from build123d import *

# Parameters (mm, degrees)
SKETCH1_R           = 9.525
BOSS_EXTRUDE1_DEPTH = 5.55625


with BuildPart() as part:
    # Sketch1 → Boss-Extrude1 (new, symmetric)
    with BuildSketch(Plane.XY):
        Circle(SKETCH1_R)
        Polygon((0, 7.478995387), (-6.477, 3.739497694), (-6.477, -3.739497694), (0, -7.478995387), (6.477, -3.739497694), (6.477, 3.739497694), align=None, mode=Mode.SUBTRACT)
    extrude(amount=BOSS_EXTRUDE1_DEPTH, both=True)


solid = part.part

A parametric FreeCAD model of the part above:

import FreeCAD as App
import Part
import Sketcher
Q = App.Units.Quantity


def add_polygon(sketch, points):
    """Adds a closed chain of lines whose ends are joined by coincident constraints."""
    first, n = sketch.GeometryCount, len(points)
    for a, b in zip(points, points[1:] + points[:1]):
        sketch.addGeometry(Part.LineSegment(App.Vector(*a, 0), App.Vector(*b, 0)), False)
    for i in range(n):
        sketch.addConstraint(Sketcher.Constraint("Coincident", first + i, 2, first + (i + 1) % n, 1))

doc = App.newDocument("Part")
params = doc.addObject("Spreadsheet::Sheet", "Params")
for row, (alias, value) in enumerate([
    ("sketch1_diameter", "0.75 in"),
    ("pad1_length", "0.4375 in"),
], start=1):
    params.set(f"A{row}", alias)
    params.set(f"B{row}", "=" + value)
    params.setAlias(f"B{row}", alias)

body = doc.addObject("PartDesign::Body", "Body")

sketch1 = body.newObject("Sketcher::SketchObject", "Sketch")
sketch1.AttachmentSupport = (doc.getObject("XY_Plane"), [""])
sketch1.MapMode = "FlatFace"
sketch1.addGeometry(Part.Circle(App.Vector(0, 0, 0), App.Vector(0, 0, 1), 10), False)
add_polygon(sketch1, [(-6, 4), (0, 7), (6, 4), (6, -4), (0, -7), (-6, -4)])
sketch1.addConstraint([
    Sketcher.Constraint("Vertical", 3),
    Sketcher.Constraint("Vertical", 6),
    Sketcher.Constraint("Coincident", 0, 3, -1, 1),
    Sketcher.Constraint("Symmetric", 1, 2, 4, 2, -1, 1),
    Sketcher.Constraint("Symmetric", 2, 2, 5, 2, -1, 1),
    Sketcher.Constraint("PointOnObject", 1, 2, -2),
    Sketcher.Constraint("Parallel", 1, 4),
    Sketcher.Constraint("Horizontal", 3, 2, 5, 2),
    Sketcher.Constraint("Diameter", 0, Q("0.75 in")),
    Sketcher.Constraint("Angle", 1, Q("30 deg")),
    Sketcher.Constraint("DistanceX", 5, 2, 3, 2, Q("0.51 in")),
    Sketcher.Constraint("DistanceY", 3, 2, 3, 1, Q("7.478995 mm")),
])
sketch1.setExpression("Constraints[14]", "Params.sketch1_diameter")
pad1 = body.newObject("PartDesign::Pad", "Pad")
pad1.Profile = sketch1
pad1.setExpression("Length", "Params.pad1_length")
pad1.Midplane = True

doc.recompute()
